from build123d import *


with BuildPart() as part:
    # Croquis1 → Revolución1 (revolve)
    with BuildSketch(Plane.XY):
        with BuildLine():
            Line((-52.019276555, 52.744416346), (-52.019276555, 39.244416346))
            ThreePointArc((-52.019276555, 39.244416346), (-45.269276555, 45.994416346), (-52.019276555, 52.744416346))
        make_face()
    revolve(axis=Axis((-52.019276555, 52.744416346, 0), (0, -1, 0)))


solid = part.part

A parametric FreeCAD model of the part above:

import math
import FreeCAD as App
import Part
import Sketcher
Q = App.Units.Quantity

doc = App.newDocument("Part")
body = doc.addObject("PartDesign::Body", "Body")

# Sketch on XY plane
sketch1 = doc.addObject("Sketcher::SketchObject", "Sketch")
body.addObject(sketch1)
sketch1.AttachmentSupport = (doc.XY_Plane, [""])
sketch1.MapMode = "FlatFace"
sketch1.addGeometry([
    Part.LineSegment(App.Vector(-52.019277, 52.744416, 0), App.Vector(-52.019277, 39.244416, 0)),
    Part.ArcOfCircle(Part.Circle(App.Vector(-52.019277, 45.994416, 0), App.Vector(0, 0, 1), 6.75), math.radians(-90), math.radians(90)),
], False)
sketch1.addGeometry(Part.LineSegment(App.Vector(-52.019277, 52.744416, 0), App.Vector(-52.019277, 39.244416, 0)), True)  # axis
sketch1.addConstraint([
    Sketcher.Constraint("Coincident", 0, 1, 1, 2),
    Sketcher.Constraint("Coincident", 1, 1, 0, 2),
    Sketcher.Constraint("Vertical", 0),
    Sketcher.Constraint("Vertical", 2),
    Sketcher.Constraint("Coincident", 2, 1, 0, 1),
    Sketcher.Constraint("Vertical", 1, 3, 0, 1),
    Sketcher.Constraint("Equal", 0, 2),
    Sketcher.Constraint("Radius", 1, Q("6.75 mm")),
    Sketcher.Constraint("DistanceX", 1, 3, -1, 1, Q("52.019277 mm")),
    Sketcher.Constraint("DistanceY", -1, 1, 1, 3, Q("45.994416 mm")),
])
revolution = doc.addObject("PartDesign::Revolution", "Revolution")
body.addObject(revolution)
revolution.Profile = sketch1
revolution.ReferenceAxis = (sketch1, ["Axis0"])
revolution.Angle = 360

doc.recompute()
